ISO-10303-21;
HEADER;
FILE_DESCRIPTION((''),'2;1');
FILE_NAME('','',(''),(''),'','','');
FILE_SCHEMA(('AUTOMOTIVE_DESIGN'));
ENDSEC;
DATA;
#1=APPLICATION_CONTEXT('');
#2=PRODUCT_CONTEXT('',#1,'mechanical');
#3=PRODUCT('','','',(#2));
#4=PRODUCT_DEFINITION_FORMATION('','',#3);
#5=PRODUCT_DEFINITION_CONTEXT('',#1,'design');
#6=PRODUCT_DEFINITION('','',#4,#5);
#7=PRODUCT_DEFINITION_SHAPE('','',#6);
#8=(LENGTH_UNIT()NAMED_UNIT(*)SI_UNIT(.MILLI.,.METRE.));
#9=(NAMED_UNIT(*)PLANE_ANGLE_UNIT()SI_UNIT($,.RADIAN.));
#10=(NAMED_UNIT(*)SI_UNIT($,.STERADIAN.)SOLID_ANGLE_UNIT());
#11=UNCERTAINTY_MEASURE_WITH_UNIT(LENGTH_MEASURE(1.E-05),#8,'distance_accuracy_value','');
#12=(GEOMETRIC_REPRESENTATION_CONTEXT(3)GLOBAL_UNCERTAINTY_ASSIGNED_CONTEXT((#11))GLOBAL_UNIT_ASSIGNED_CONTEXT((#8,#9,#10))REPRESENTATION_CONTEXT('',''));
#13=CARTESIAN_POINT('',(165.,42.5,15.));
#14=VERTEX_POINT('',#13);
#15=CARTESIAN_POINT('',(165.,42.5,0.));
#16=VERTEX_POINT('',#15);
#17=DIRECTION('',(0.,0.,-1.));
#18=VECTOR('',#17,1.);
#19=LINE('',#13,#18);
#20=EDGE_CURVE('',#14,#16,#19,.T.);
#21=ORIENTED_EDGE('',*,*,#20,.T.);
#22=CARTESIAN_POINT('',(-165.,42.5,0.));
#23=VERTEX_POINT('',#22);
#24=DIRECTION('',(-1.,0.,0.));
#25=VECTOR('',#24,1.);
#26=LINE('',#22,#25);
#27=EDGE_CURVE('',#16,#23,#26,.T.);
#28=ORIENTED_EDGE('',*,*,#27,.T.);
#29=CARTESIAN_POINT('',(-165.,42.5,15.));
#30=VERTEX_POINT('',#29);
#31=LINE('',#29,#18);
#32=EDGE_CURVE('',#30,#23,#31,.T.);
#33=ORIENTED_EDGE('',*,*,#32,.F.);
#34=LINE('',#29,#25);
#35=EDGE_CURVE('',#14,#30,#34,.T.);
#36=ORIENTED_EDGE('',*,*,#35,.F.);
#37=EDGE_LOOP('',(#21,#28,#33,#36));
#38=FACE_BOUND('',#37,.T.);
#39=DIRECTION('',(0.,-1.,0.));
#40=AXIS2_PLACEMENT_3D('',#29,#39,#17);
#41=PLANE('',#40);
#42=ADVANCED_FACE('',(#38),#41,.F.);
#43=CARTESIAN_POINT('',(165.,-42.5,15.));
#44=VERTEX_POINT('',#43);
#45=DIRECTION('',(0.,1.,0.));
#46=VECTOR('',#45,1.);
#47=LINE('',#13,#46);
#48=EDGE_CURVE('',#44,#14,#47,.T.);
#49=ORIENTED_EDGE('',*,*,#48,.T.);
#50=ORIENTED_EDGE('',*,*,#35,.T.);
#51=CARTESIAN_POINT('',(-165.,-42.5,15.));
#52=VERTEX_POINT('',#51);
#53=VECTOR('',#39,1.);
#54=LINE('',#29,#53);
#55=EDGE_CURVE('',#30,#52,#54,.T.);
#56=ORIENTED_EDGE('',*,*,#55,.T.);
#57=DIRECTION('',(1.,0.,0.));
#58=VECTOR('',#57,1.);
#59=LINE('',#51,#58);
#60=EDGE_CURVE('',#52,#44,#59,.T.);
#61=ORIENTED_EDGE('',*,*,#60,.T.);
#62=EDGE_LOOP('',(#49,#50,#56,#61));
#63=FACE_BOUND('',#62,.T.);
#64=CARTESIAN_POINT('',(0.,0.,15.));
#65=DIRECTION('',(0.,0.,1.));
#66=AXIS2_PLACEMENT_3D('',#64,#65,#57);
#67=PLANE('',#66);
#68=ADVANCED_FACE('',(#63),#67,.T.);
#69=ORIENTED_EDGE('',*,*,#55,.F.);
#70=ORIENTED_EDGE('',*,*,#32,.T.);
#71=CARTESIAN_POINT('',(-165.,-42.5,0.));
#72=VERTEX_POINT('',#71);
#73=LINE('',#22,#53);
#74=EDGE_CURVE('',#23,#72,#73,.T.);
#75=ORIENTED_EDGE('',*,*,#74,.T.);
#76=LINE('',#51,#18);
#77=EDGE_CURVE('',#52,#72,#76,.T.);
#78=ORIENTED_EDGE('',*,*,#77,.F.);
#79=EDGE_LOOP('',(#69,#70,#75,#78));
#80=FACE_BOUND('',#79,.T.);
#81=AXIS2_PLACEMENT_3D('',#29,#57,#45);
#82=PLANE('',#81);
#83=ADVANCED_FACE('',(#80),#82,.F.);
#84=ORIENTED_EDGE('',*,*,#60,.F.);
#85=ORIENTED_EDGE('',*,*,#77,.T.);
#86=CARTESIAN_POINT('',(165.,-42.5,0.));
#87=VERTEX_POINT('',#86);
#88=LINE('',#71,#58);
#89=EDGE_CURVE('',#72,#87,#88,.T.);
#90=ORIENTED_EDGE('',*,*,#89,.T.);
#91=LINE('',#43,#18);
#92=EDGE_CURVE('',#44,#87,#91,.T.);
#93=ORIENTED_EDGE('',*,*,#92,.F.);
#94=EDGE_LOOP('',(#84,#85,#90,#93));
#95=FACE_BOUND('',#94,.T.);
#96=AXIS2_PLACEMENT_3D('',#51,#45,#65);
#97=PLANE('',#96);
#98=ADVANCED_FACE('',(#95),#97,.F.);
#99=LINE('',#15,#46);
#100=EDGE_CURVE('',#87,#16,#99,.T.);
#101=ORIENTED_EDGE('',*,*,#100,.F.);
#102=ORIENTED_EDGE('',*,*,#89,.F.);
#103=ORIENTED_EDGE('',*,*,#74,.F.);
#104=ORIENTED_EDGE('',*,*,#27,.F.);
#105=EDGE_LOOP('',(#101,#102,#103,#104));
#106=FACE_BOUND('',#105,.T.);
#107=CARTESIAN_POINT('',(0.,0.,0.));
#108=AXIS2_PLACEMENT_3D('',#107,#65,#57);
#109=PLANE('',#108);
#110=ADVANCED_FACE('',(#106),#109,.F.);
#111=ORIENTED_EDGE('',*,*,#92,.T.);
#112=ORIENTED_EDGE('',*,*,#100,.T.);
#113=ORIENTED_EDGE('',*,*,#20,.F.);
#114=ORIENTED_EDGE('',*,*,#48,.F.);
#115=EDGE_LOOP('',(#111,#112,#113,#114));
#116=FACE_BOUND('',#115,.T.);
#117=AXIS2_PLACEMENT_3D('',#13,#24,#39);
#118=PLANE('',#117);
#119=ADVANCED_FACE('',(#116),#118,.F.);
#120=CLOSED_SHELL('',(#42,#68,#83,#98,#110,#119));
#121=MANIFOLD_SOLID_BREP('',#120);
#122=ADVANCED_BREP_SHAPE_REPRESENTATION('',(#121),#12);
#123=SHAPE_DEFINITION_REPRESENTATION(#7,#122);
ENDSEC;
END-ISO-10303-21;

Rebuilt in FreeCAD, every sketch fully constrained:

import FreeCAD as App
import Part
import Sketcher

doc = App.newDocument("Part")
params = doc.addObject("Spreadsheet::Sheet", "Params")
for row, (alias, value) in enumerate([
    ("sketch1_width", "330 mm"),
    ("sketch1_height", "85 mm"),
    ("pad1_length", "15 mm"),
], start=1):
    params.set(f"A{row}", alias)
    params.set(f"B{row}", "=" + value)
    params.setAlias(f"B{row}", alias)

body = doc.addObject("PartDesign::Body", "Body")

sketch1 = body.newObject("Sketcher::SketchObject", "Sketch")
sketch1.AttachmentSupport = (doc.getObject("XY_Plane"), [""])
sketch1.MapMode = "FlatFace"
sketch1.addGeometry([
    Part.LineSegment(App.Vector(-165, 42, 0), App.Vector(-165, -42, 0)),
    Part.LineSegment(App.Vector(-165, -42, 0), App.Vector(165, -42, 0)),
    Part.LineSegment(App.Vector(165, -42, 0), App.Vector(165, 42, 0)),
    Part.LineSegment(App.Vector(165, 42, 0), App.Vector(-165, 42, 0)),
], False)
sketch1.addConstraint([
    Sketcher.Constraint("Coincident", 0, 2, 1, 1),
    Sketcher.Constraint("Coincident", 1, 2, 2, 1),
    Sketcher.Constraint("Coincident", 2, 2, 3, 1),
    Sketcher.Constraint("Coincident", 3, 2, 0, 1),
    Sketcher.Constraint("Vertical", 0),
    Sketcher.Constraint("Horizontal", 1),
    Sketcher.Constraint("Vertical", 2),
    Sketcher.Constraint("Horizontal", 3),
    Sketcher.Constraint("Symmetric", 0, 2, 2, 2, -1, 1),
    Sketcher.Constraint("DistanceX", 1, 1, 1, 2, 330.0),
    Sketcher.Constraint("DistanceY", 0, 2, 0, 1, 85.0),
])
sketch1.setExpression("Constraints[9]", "Params.sketch1_width")
sketch1.setExpression("Constraints[10]", "Params.sketch1_height")
pad1 = body.newObject("PartDesign::Pad", "Pad")
pad1.Profile = sketch1
pad1.setExpression("Length", "Params.pad1_length")

doc.recompute()
